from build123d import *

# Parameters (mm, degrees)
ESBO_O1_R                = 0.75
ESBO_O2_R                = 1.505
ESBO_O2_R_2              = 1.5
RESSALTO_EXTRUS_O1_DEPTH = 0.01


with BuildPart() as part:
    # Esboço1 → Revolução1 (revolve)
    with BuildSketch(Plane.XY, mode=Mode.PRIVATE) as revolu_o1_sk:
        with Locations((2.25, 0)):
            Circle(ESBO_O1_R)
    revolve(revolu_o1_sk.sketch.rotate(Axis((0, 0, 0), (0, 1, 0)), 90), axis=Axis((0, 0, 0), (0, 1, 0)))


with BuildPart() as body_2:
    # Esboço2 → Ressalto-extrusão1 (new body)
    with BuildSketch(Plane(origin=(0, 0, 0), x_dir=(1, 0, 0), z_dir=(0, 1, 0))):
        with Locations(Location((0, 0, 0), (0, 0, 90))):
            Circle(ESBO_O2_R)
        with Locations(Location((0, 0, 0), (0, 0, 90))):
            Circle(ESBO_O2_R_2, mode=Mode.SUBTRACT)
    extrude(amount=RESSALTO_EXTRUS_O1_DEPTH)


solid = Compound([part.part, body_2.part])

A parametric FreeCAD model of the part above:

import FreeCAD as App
import Part
import Sketcher

doc = App.newDocument("Part")
params = doc.addObject("Spreadsheet::Sheet", "Params")
for row, (alias, value) in enumerate([
    ("sketch1_diameter", "1.5 mm"),
    ("revolution_angle", "360 deg"),
    ("sketch2_diameter", "3 mm"),
    ("sketch2_diameter2", "3.01 mm"),
    ("pad1_length", "0.01 mm"),
], start=1):
    params.set(f"A{row}", alias)
    params.set(f"B{row}", "=" + value)
    params.setAlias(f"B{row}", alias)

body = doc.addObject("PartDesign::Body", "Body")

# Sketch on XY plane
sketch1 = body.newObject("Sketcher::SketchObject", "Sketch")
sketch1.AttachmentSupport = (doc.getObject("XY_Plane"), [""])
sketch1.MapMode = "FlatFace"
sketch1.addGeometry(Part.Circle(App.Vector(2.2, 0, 0), App.Vector(0, 0, 1), 0.8), False)
sketch1.addConstraint(Sketcher.Constraint("PointOnObject", 0, 3, -1))
sketch1.addConstraint(Sketcher.Constraint("Diameter", 0, 1.5))
sketch1.addConstraint(Sketcher.Constraint("DistanceX", -1, 1, 0, 3, 2.25))
sketch1.setExpression("Constraints[1]", "Params.sketch1_diameter")
revolution = body.newObject("PartDesign::Revolution", "Revolution")
revolution.Profile = sketch1
revolution.ReferenceAxis = (sketch1, ["V_Axis"])
revolution.setExpression("Angle", "Params.revolution_angle")
body2 = doc.addObject("PartDesign::Body", "Body001")

# Sketch on XZ plane
sketch2 = body2.newObject("Sketcher::SketchObject", "Sketch001")
sketch2.AttachmentSupport = (doc.getObject("XZ_Plane001"), [""])
sketch2.MapMode = "FlatFace"
sketch2.addGeometry(Part.Circle(App.Vector(0, 0, 0), App.Vector(0, 0, 1), 1.5), False)
sketch2.addGeometry(Part.Circle(App.Vector(0, 0, 0), App.Vector(0, 0, 1), 1.5), False)
sketch2.addConstraint(Sketcher.Constraint("Coincident", 0, 3, -1, 1))
sketch2.addConstraint(Sketcher.Constraint("Coincident", 1, 3, -1, 1))
sketch2.addConstraint(Sketcher.Constraint("Diameter", 1, 3.0))
sketch2.addConstraint(Sketcher.Constraint("Diameter", 0, 3.01))
sketch2.setExpression("Constraints[2]", "Params.sketch2_diameter")
sketch2.setExpression("Constraints[3]", "Params.sketch2_diameter2")
pad1 = body2.newObject("PartDesign::Pad", "Pad")
pad1.Profile = sketch2
pad1.setExpression("Length", "Params.pad1_length")
pad1.Reversed = True

doc.recompute()
